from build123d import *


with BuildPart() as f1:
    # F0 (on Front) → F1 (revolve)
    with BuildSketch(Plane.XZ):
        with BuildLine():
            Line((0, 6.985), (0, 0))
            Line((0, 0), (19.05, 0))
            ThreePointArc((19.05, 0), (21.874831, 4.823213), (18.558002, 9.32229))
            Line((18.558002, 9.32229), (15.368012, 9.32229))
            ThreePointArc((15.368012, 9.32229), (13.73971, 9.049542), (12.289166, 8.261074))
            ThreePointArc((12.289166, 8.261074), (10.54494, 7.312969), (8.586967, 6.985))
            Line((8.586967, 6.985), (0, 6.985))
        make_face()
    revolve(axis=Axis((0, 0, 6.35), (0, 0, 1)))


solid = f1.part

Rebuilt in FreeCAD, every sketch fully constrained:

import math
import FreeCAD as App
import Part
import Sketcher
Q = App.Units.Quantity

doc = App.newDocument("Part")
params = doc.addObject("Spreadsheet::Sheet", "Params")
for row, (alias, value) in enumerate([
    ("sketch1_radius", "0.2 in"),
    ("sketch1_width", "0.75 in"),
    ("sketch1_height", "0.275 in"),
    ("revolution_angle", "360 deg"),
], start=1):
    params.set(f"A{row}", alias)
    params.set(f"B{row}", "=" + value)
    params.setAlias(f"B{row}", alias)

body = doc.addObject("PartDesign::Body", "Body")

sketch1 = body.newObject("Sketcher::SketchObject", "Sketch")
sketch1.AttachmentSupport = (doc.getObject("XZ_Plane"), [""])
sketch1.MapMode = "FlatFace"
sketch1.addGeometry([
    Part.LineSegment(App.Vector(0, 7, 0), App.Vector(0, 0, 0)),
    Part.LineSegment(App.Vector(0, 0, 0), App.Vector(19.1, 0, 0)),
    Part.ArcOfCircle(Part.Circle(App.Vector(16.8, 4.6, 0), App.Vector(0, 0, 1), 5.1), math.radians(-64), math.radians(70)),
    Part.LineSegment(App.Vector(18.6, 9.3, 0), App.Vector(15.4, 9.3, 0)),
    Part.ArcOfCircle(Part.Circle(App.Vector(15.4, 4.3, 0), App.Vector(0, 0, 1), 5), math.radians(90), math.radians(128)),
    Part.ArcOfCircle(Part.Circle(App.Vector(8.6, 13, 0), App.Vector(0, 0, 1), 6), math.radians(-90), math.radians(-52)),
    Part.LineSegment(App.Vector(8.6, 7, 0), App.Vector(0, 7, 0)),
], False)
sketch1.addConstraint([
    Sketcher.Constraint("Coincident", 0, 2, 1, 1),
    Sketcher.Constraint("Coincident", 1, 2, 2, 1),
    Sketcher.Constraint("Coincident", 2, 2, 3, 1),
    Sketcher.Constraint("Tangent", 3, 2, 4, 1),
    Sketcher.Constraint("Tangent", 4, 2, 5, 2),
    Sketcher.Constraint("Tangent", 5, 1, 6, 1),
    Sketcher.Constraint("Coincident", 6, 2, 0, 1),
    Sketcher.Constraint("Vertical", 0),
    Sketcher.Constraint("Horizontal", 1),
    Sketcher.Constraint("Horizontal", 3),
    Sketcher.Constraint("Horizontal", 6),
    Sketcher.Constraint("Coincident", 0, 2, -1, 1),
    Sketcher.Constraint("Radius", 2, Q("0.2 in")),
    Sketcher.Constraint("DistanceX", 1, 1, 1, 2, Q("0.75 in")),
    Sketcher.Constraint("DistanceY", 0, 2, 0, 1, Q("0.275 in")),
    Sketcher.Constraint("Radius", 5, 6.00852),
    Sketcher.Constraint("Radius", 4, 4.996853),
    Sketcher.Constraint("DistanceX", 3, 2, 3, 1, 3.18999),
    Sketcher.Constraint("DistanceX", 5, 1, 4, 2, 3.702199),
    Sketcher.Constraint("DistanceX", 6, 2, 6, 1, 8.586967),
])
sketch1.setExpression("Constraints[12]", "Params.sketch1_radius")
sketch1.setExpression("Constraints[13]", "Params.sketch1_width")
sketch1.setExpression("Constraints[14]", "Params.sketch1_height")
revolution = body.newObject("PartDesign::Revolution", "Revolution")
revolution.Profile = sketch1
revolution.ReferenceAxis = (sketch1, ["V_Axis"])
revolution.setExpression("Angle", "Params.revolution_angle")

doc.recompute()
